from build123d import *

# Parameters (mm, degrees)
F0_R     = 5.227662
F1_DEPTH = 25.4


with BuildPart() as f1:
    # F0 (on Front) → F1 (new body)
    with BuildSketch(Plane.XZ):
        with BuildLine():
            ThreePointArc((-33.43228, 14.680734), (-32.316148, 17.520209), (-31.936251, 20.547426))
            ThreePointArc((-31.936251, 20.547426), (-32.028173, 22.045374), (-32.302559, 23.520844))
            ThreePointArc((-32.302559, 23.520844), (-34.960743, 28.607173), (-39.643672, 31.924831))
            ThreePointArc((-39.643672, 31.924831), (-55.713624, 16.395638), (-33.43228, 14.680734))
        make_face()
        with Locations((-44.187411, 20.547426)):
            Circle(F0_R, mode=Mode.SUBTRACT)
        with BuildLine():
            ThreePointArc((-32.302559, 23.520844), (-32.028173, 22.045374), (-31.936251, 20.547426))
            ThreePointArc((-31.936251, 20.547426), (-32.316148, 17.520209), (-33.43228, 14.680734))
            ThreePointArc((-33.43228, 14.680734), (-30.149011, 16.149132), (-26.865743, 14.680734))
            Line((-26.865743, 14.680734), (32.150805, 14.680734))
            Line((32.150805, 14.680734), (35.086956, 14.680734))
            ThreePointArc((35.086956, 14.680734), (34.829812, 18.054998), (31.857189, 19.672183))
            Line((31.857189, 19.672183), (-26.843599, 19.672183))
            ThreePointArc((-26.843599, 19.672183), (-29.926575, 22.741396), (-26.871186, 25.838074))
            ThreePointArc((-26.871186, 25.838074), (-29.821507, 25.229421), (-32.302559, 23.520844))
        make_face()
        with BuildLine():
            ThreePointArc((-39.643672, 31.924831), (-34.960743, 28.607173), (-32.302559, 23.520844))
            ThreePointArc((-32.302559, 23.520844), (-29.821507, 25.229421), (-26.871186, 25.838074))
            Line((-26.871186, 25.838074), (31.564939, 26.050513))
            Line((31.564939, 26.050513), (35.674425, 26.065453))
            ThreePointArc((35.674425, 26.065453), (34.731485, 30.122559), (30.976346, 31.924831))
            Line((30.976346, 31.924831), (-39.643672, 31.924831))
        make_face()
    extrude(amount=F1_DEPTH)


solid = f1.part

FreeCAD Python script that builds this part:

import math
import FreeCAD as App
import Part
import Sketcher
from FreeCAD import Vector
Q = App.Units.Quantity

doc = App.newDocument("Part")
body = doc.addObject("PartDesign::Body", "Body")

# Sketch on XZ plane
sketch1 = body.newObject("Sketcher::SketchObject", "Sketch")
sketch1.AttachmentSupport = (doc.getObject("XZ_Plane"), [""])
sketch1.MapMode = "FlatFace"
sketch1.addGeometry([
    Part.ArcOfCircle(Part.Circle(Vector(-44.2, 20.5, 0), Vector(0, 0, 1), 12.3), math.radians(68), math.radians(331)),  # 0
    Part.ArcOfCircle(Part.Circle(Vector(-30.1, 11.7, 0), Vector(0, 0, 1), 4.4), math.radians(42), math.radians(138)),  # 1
    Part.LineSegment(Vector(-26.9, 14.7, 0), Vector(35.1, 14.7, 0)),  # 2
    Part.ArcOfCircle(Part.Circle(Vector(31.9, 16.1, 0), Vector(0, 0, 1), 3.5), math.radians(-24), math.radians(90)),  # 3
    Part.LineSegment(Vector(31.9, 19.7, 0), Vector(-26.8, 19.7, 0)),  # 4
    Part.ArcOfCircle(Part.Circle(Vector(-26.8, 22.8, 0), Vector(0, 0, 1), 3.1), math.radians(91), math.radians(270)),  # 5
    Part.LineSegment(Vector(-26.9, 25.8, 0), Vector(31.6, 26.1, 0)),  # 6
    Part.LineSegment(Vector(31.6, 26.1, 0), Vector(35.7, 26.1, 0)),  # 7
    Part.ArcOfCircle(Part.Circle(Vector(31, 27.1, 0), Vector(0, 0, 1), 4.8), math.radians(-13), math.radians(90)),  # 8
    Part.LineSegment(Vector(31, 31.9, 0), Vector(-39.6, 31.9, 0)),  # 9
    Part.Circle(Vector(-44.2, 20.5, 0), Vector(0, 0, 1), 5.2),  # 10
], False)
sketch1.addConstraint([
    Sketcher.Constraint("Coincident", 0, 2, 1, 2),
    Sketcher.Constraint("Coincident", 1, 1, 2, 1),
    Sketcher.Constraint("Coincident", 2, 2, 3, 1),
    Sketcher.Constraint("Tangent", 3, 2, 4, 1),
    Sketcher.Constraint("Tangent", 4, 2, 5, 2),
    Sketcher.Constraint("Coincident", 5, 1, 6, 1),
    Sketcher.Constraint("Coincident", 6, 2, 7, 1),
    Sketcher.Constraint("Coincident", 7, 2, 8, 1),
    Sketcher.Constraint("Tangent", 8, 2, 9, 1),
    Sketcher.Constraint("Coincident", 9, 2, 0, 1),
    Sketcher.Constraint("Horizontal", 2),
    Sketcher.Constraint("Horizontal", 4),
    Sketcher.Constraint("Horizontal", 9),
    Sketcher.Constraint("Coincident", 10, 3, 0, 3),
    Sketcher.Constraint("Parallel", 6, 7),
    Sketcher.Constraint("Horizontal", 0, 2, 1, 1),
    Sketcher.Constraint("Radius", 0, 12.25116),
    Sketcher.Constraint("Radius", 3, 3.540651),
    Sketcher.Constraint("Radius", 8, 4.81316),
    Sketcher.Constraint("Diameter", 10, 10.455324),
    Sketcher.Constraint("DistanceX", 2, 1, 2, 2, 61.952699),
    Sketcher.Constraint("Radius", 1, 4.404816),
    Sketcher.Constraint("Radius", 5, 3.083007),
    Sketcher.Constraint("DistanceX", 4, 2, 4, 1, 58.700788),
    Sketcher.Constraint("DistanceX", 9, 2, 9, 1, 70.620018),
    Sketcher.Constraint("DistanceX", 5, 3, -1, 1, 26.843599),
    Sketcher.Constraint("DistanceX", 0, 3, 1, 3, 14.0384),
    Sketcher.Constraint("DistanceX", 1, 3, 3, 3, 62.0062),
    Sketcher.Constraint("DistanceY", 3, 3, 8, 2, 15.793299),
    Sketcher.Constraint("Distance", 6, 58.436511),
    Sketcher.Constraint("DistanceY", -1, 1, 3, 3, 16.131532),
    Sketcher.Constraint("DistanceX", 0, 2, -1, 1, 33.43228),
    Sketcher.Constraint("DistanceX", -1, 1, 6, 2, 31.564939),
    Sketcher.Constraint("DistanceY", 3, 2, 6, 2, 6.37833),
])
pad1 = body.newObject("PartDesign::Pad", "Pad")
pad1.Profile = sketch1
pad1.Length = Q("1 in")

doc.recompute()
